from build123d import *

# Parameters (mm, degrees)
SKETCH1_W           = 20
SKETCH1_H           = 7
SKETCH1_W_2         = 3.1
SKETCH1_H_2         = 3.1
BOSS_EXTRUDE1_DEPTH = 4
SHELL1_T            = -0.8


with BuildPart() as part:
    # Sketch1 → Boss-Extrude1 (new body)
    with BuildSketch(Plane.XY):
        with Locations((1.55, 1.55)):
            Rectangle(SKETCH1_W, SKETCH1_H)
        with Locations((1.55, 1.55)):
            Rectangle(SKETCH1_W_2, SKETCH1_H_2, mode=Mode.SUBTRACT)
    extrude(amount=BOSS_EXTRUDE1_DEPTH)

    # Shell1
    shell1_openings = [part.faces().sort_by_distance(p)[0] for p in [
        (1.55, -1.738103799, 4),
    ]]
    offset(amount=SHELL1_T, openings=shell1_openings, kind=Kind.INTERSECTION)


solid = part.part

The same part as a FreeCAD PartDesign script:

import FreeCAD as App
import Part
import Sketcher


def faces_at(feature, points):
    """Names of the faces that lie closest to the given points."""
    faces = feature.Shape.Faces
    near = lambda p: min(range(len(faces)), key=lambda i: faces[i].distToShape(Part.Vertex(*p))[0])
    return sorted({f"Face{near(p) + 1}" for p in points})

doc = App.newDocument("Part")
body = doc.addObject("PartDesign::Body", "Body")

# Sketch on XY plane
sketch1 = body.newObject("Sketcher::SketchObject", "Sketch")
sketch1.AttachmentSupport = (doc.getObject("XY_Plane"), [""])
sketch1.MapMode = "FlatFace"
sketch1.addGeometry(Part.LineSegment(App.Vector(-8.4, 5, 0), App.Vector(-8.4, -1.9, 0)), False)
sketch1.addGeometry(Part.LineSegment(App.Vector(-8.4, -1.9, 0), App.Vector(11.6, -1.9, 0)), False)
sketch1.addGeometry(Part.LineSegment(App.Vector(11.6, -1.9, 0), App.Vector(11.6, 5, 0)), False)
sketch1.addGeometry(Part.LineSegment(App.Vector(11.6, 5, 0), App.Vector(-8.4, 5, 0)), False)
sketch1.addGeometry(Part.LineSegment(App.Vector(3.1, 0, 0), App.Vector(0, 0, 0)), False)
sketch1.addGeometry(Part.LineSegment(App.Vector(0, 0, 0), App.Vector(0, 3.1, 0)), False)
sketch1.addGeometry(Part.LineSegment(App.Vector(0, 3.1, 0), App.Vector(3.1, 3.1, 0)), False)
sketch1.addGeometry(Part.LineSegment(App.Vector(3.1, 3.1, 0), App.Vector(3.1, 0, 0)), False)
sketch1.addConstraint(Sketcher.Constraint("Coincident", 0, 2, 1, 1))
sketch1.addConstraint(Sketcher.Constraint("Coincident", 1, 2, 2, 1))
sketch1.addConstraint(Sketcher.Constraint("Coincident", 2, 2, 3, 1))
sketch1.addConstraint(Sketcher.Constraint("Coincident", 3, 2, 0, 1))
sketch1.addConstraint(Sketcher.Constraint("Coincident", 4, 2, 5, 1))
sketch1.addConstraint(Sketcher.Constraint("Coincident", 5, 2, 6, 1))
sketch1.addConstraint(Sketcher.Constraint("Coincident", 6, 2, 7, 1))
sketch1.addConstraint(Sketcher.Constraint("Coincident", 7, 2, 4, 1))
sketch1.addConstraint(Sketcher.Constraint("Vertical", 0))
sketch1.addConstraint(Sketcher.Constraint("Horizontal", 1))
sketch1.addConstraint(Sketcher.Constraint("Vertical", 2))
sketch1.addConstraint(Sketcher.Constraint("Horizontal", 3))
sketch1.addConstraint(Sketcher.Constraint("Horizontal", 4))
sketch1.addConstraint(Sketcher.Constraint("Vertical", 5))
sketch1.addConstraint(Sketcher.Constraint("Horizontal", 6))
sketch1.addConstraint(Sketcher.Constraint("Vertical", 7))
sketch1.addConstraint(Sketcher.Constraint("Coincident", 4, 2, -1, 1))
sketch1.addConstraint(Sketcher.Constraint("Equal", 6, 5))
sketch1.addConstraint(Sketcher.Constraint("DistanceX", 1, 1, 1, 2, 20.0))
sketch1.addConstraint(Sketcher.Constraint("DistanceY", 0, 2, 0, 1, 7.0))
sketch1.addConstraint(Sketcher.Constraint("DistanceX", 4, 2, 4, 1, 3.1))
sketch1.addConstraint(Sketcher.Constraint("DistanceX", 0, 2, -1, 1, 8.45))
sketch1.addConstraint(Sketcher.Constraint("DistanceY", 0, 2, -1, 1, 1.95))
pad1 = body.newObject("PartDesign::Pad", "Pad")
pad1.Profile = sketch1
pad1.Length = 4
doc.recompute()

thickness = body.newObject("PartDesign::Thickness", "Thickness")
thickness.Base = (pad1, faces_at(pad1, [(-2.45, 0.15, 4)]))
thickness.Value = 0.8
thickness.Reversed = True
thickness.Join = "Intersection"

doc.recompute()
